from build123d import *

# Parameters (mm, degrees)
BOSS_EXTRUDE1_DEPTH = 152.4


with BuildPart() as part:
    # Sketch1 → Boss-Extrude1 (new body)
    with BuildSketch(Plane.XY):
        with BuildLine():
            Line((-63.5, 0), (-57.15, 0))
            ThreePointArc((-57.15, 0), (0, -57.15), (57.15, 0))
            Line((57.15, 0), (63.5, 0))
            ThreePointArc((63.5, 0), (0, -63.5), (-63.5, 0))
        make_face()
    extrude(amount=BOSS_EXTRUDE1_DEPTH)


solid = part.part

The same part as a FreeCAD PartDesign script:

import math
import FreeCAD as App
import Part
import Sketcher

V = App.Vector
Q = App.Units.Quantity

doc = App.newDocument("Part")
params = doc.addObject("Spreadsheet::Sheet", "Params")
for row, (alias, value) in enumerate([
    ("sketch1_radius", "2.5 in"),
    ("sketch1_radius2", "2.25 in"),
    ("pad1_length", "6 in"),
], start=1):
    params.set(f"A{row}", alias)
    params.set(f"B{row}", "=" + value)
    params.setAlias(f"B{row}", alias)

body = doc.addObject("PartDesign::Body", "Body")

# Sketch on XY plane
sketch1 = body.newObject("Sketcher::SketchObject", "Sketch")
sketch1.AttachmentSupport = (doc.getObject("XY_Plane"), [""])
sketch1.MapMode = "FlatFace"
sketch1.addGeometry([
    Part.LineSegment(V(-57, 0, 0), V(-64, 0, 0)),
    Part.ArcOfCircle(Part.Circle(V(0, 0, 0), V(0, 0, 1), 64), math.radians(180), math.radians(360)),
    Part.LineSegment(V(64, 0, 0), V(57, 0, 0)),
    Part.ArcOfCircle(Part.Circle(V(0, 0, 0), V(0, 0, 1), 57), math.radians(180), math.radians(360)),
], False)
sketch1.addConstraint([
    Sketcher.Constraint("Coincident", 0, 2, 1, 1),
    Sketcher.Constraint("Coincident", 1, 2, 2, 1),
    Sketcher.Constraint("Coincident", 2, 2, 3, 2),
    Sketcher.Constraint("Coincident", 3, 1, 0, 1),
    Sketcher.Constraint("Horizontal", 0),
    Sketcher.Constraint("Horizontal", 2),
    Sketcher.Constraint("Coincident", 1, 3, -1, 1),
    Sketcher.Constraint("Coincident", 3, 3, -1, 1),
    Sketcher.Constraint("PointOnObject", 0, 2, -1),
    Sketcher.Constraint("PointOnObject", 1, 2, -1),
    Sketcher.Constraint("Radius", 1, Q("2.5 in")),
    Sketcher.Constraint("Radius", 3, Q("2.25 in")),
])
sketch1.setExpression("Constraints[10]", "Params.sketch1_radius")
sketch1.setExpression("Constraints[11]", "Params.sketch1_radius2")
pad1 = body.newObject("PartDesign::Pad", "Pad")
pad1.Profile = sketch1
pad1.setExpression("Length", "Params.pad1_length")

doc.recompute()
